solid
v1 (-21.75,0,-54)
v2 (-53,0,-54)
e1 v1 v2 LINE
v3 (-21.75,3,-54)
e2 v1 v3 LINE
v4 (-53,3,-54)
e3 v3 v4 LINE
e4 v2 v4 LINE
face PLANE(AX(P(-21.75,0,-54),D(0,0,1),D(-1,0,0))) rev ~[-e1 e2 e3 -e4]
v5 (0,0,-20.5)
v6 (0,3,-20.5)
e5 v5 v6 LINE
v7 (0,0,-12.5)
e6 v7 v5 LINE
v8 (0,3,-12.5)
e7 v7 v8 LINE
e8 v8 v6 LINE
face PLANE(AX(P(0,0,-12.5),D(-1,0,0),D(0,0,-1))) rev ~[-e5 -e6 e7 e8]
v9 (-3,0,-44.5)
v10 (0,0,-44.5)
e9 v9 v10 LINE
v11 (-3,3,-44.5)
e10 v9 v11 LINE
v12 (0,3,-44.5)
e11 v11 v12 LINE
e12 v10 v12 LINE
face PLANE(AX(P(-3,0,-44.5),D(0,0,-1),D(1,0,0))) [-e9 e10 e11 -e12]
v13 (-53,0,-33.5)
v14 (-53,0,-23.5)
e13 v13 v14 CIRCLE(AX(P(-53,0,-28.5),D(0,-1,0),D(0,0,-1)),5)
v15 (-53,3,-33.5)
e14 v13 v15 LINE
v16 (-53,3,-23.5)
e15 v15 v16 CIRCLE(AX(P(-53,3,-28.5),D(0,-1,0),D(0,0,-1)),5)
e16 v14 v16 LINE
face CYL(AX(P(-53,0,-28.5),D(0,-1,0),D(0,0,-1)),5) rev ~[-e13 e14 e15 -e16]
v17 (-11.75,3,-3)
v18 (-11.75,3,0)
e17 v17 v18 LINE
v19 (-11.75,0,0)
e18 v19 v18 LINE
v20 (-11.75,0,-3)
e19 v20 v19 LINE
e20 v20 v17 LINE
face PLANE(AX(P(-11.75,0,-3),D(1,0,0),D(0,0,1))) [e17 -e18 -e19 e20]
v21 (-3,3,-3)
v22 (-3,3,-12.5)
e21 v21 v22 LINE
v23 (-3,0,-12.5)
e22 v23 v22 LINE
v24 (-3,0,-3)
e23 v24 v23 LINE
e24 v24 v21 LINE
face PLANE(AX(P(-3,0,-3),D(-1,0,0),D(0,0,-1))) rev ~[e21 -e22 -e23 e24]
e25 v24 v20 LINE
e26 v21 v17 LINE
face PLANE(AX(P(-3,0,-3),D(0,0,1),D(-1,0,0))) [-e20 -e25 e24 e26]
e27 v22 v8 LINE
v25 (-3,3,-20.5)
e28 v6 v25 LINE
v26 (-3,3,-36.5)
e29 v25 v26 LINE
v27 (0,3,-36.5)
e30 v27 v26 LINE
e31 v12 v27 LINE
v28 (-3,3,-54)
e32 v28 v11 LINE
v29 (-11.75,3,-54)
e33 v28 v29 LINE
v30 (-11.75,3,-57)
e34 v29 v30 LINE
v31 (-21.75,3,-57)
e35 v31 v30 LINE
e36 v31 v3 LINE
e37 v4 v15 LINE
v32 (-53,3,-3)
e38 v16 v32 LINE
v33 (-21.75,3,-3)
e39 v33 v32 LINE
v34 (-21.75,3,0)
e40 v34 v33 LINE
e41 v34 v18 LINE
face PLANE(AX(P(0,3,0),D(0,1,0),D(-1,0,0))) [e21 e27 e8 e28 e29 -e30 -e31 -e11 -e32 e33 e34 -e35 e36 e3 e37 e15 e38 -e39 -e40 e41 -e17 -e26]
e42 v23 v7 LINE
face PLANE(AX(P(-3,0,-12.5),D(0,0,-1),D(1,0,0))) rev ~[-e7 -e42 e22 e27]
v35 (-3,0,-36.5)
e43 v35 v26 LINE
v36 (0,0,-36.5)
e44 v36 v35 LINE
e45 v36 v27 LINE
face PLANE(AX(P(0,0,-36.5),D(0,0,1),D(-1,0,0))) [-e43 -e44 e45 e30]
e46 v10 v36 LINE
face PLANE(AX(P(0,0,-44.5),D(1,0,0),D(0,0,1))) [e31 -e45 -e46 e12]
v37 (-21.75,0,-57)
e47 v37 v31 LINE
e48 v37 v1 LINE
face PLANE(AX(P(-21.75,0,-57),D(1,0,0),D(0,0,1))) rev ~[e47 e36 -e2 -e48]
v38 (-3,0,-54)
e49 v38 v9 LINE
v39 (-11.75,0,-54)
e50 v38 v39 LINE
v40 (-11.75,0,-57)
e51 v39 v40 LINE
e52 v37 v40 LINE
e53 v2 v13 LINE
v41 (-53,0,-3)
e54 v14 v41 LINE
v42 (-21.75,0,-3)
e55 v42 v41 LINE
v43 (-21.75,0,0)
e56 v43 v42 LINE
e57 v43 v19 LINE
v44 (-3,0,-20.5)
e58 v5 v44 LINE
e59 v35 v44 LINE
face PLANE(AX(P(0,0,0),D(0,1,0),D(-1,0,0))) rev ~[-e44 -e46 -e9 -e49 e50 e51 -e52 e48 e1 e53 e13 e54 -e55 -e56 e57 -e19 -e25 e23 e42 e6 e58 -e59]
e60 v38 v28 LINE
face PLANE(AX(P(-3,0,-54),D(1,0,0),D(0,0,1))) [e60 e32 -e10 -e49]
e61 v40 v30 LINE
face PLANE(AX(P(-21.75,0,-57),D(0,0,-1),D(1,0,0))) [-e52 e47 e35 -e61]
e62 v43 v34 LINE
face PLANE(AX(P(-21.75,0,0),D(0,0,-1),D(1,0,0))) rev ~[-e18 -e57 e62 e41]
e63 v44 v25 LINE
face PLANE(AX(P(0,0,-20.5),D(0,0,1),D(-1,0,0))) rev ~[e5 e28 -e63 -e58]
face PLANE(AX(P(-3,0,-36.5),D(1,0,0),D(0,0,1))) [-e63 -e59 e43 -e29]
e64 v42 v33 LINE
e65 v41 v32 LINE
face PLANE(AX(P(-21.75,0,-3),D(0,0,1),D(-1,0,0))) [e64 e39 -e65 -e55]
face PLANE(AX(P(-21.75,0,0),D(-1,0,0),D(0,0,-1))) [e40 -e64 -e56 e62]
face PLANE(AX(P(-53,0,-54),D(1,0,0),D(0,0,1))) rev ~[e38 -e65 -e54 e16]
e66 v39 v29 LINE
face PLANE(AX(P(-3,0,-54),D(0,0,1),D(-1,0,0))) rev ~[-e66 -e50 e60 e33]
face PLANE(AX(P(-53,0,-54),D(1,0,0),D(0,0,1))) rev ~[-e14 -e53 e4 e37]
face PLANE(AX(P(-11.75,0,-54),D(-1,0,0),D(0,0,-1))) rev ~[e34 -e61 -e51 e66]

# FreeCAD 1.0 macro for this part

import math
import FreeCAD as App
import Part
import Sketcher

V = App.Vector
Q = App.Units.Quantity


def add_polygon(sketch, points):
    """Adds a closed chain of lines whose ends are joined by coincident constraints."""
    first, n = sketch.GeometryCount, len(points)
    for a, b in zip(points, points[1:] + points[:1]):
        sketch.addGeometry(Part.LineSegment(App.Vector(*a, 0), App.Vector(*b, 0)), False)
    for i in range(n):
        sketch.addConstraint(Sketcher.Constraint("Coincident", first + i, 2, first + (i + 1) % n, 1))

doc = App.newDocument("Part")
body = doc.addObject("PartDesign::Body", "Body")

# Sketch on XZ plane
sketch1 = body.newObject("Sketcher::SketchObject", "Sketch")
sketch1.AttachmentSupport = (doc.getObject("XZ_Plane"), [""])
sketch1.MapMode = "FlatFace"
add_polygon(sketch1, [(-21.8, -54), (-53, -54), (-53, -3), (-21.8, -3), (-21.8, 0), (-11.8, 0), (-11.8, -3), (-3, -3), (-3, -12.5), (0, -12.5), (0, -20.5), (-3, -20.5), (-3, -36.5), (0, -36.5), (0, -44.5), (-3, -44.5), (-3, -54), (-11.8, -54), (-11.8, -57), (-21.8, -57)])  # lines 0-19
sketch1.addConstraint([
    Sketcher.Constraint("Horizontal", 0),
    Sketcher.Constraint("Vertical", 1),
    Sketcher.Constraint("Horizontal", 2),
    Sketcher.Constraint("Vertical", 3),
    Sketcher.Constraint("Horizontal", 4),
    Sketcher.Constraint("Vertical", 5),
    Sketcher.Constraint("Horizontal", 6),
    Sketcher.Constraint("Vertical", 7),
    Sketcher.Constraint("Horizontal", 8),
    Sketcher.Constraint("Vertical", 9),
    Sketcher.Constraint("Horizontal", 10),
    Sketcher.Constraint("Vertical", 11),
    Sketcher.Constraint("Horizontal", 12),
    Sketcher.Constraint("Vertical", 13),
    Sketcher.Constraint("Horizontal", 14),
    Sketcher.Constraint("Vertical", 15),
    Sketcher.Constraint("Horizontal", 16),
    Sketcher.Constraint("Vertical", 17),
    Sketcher.Constraint("Horizontal", 18),
    Sketcher.Constraint("Vertical", 19),
    Sketcher.Constraint("PointOnObject", 3, 2, -1),
    Sketcher.Constraint("PointOnObject", 8, 2, -2),
    Sketcher.Constraint("PointOnObject", 12, 2, -2),
    Sketcher.Constraint("Horizontal", 2, 2, 5, 2),
    Sketcher.Constraint("Horizontal", 0, 2, 15, 2),
    Sketcher.Constraint("Vertical", 7, 2, 10, 2),
    Sketcher.Constraint("Vertical", 11, 2, 14, 2),
    Sketcher.Constraint("Vertical", 5, 2, 16, 2),
    Sketcher.Constraint("Vertical", 3, 2, 18, 2),
    Sketcher.Constraint("Equal", 14, 3),
    Sketcher.Constraint("Equal", 9, 13),
    Sketcher.Constraint("Equal", 7, 15),
    Sketcher.Constraint("Equal", 5, 17),
    Sketcher.Constraint("DistanceX", 4, 1, 4, 2, Q("10 mm")),
    Sketcher.Constraint("DistanceY", 9, 2, 9, 1, Q("8 mm")),
    Sketcher.Constraint("DistanceX", 6, 1, 6, 2, Q("8.75 mm")),
    Sketcher.Constraint("DistanceX", 8, 1, 8, 2, Q("3 mm")),
    Sketcher.Constraint("DistanceY", 1, 1, 1, 2, Q("51 mm")),
    Sketcher.Constraint("DistanceY", 11, 2, 11, 1, Q("16 mm")),
    Sketcher.Constraint("DistanceX", 0, 2, -1, 1, Q("53 mm")),
])
pad1 = body.newObject("PartDesign::Pad", "Pad")
pad1.Profile = sketch1
pad1.Length = 3
pad1.Reversed = True

# Sketch on XZ plane
sketch2 = body.newObject("Sketcher::SketchObject", "Sketch001")
sketch2.AttachmentSupport = (doc.getObject("XZ_Plane"), [""])
sketch2.MapMode = "FlatFace"
sketch2.addGeometry([
    Part.LineSegment(V(-53, -24, 0), V(-53, -34, 0)),
    Part.ArcOfCircle(Part.Circle(V(-53, -28, 0), V(0, 0, 1), 5), math.radians(-90), math.radians(90)),
], False)
sketch2.addConstraint([
    Sketcher.Constraint("Coincident", 0, 1, 1, 2),
    Sketcher.Constraint("Coincident", 1, 1, 0, 2),
    Sketcher.Constraint("Vertical", 0),
    Sketcher.Constraint("Vertical", 1, 3, 0, 1),
    Sketcher.Constraint("Radius", 1, Q("5 mm")),
    Sketcher.Constraint("DistanceX", 1, 3, -1, 1, Q("53 mm")),
    Sketcher.Constraint("DistanceY", 1, 3, -1, 1, Q("28.5 mm")),
])
pocket1 = body.newObject("PartDesign::Pocket", "Pocket")
pocket1.Profile = sketch2
pocket1.Length = 11.25

doc.recompute()
